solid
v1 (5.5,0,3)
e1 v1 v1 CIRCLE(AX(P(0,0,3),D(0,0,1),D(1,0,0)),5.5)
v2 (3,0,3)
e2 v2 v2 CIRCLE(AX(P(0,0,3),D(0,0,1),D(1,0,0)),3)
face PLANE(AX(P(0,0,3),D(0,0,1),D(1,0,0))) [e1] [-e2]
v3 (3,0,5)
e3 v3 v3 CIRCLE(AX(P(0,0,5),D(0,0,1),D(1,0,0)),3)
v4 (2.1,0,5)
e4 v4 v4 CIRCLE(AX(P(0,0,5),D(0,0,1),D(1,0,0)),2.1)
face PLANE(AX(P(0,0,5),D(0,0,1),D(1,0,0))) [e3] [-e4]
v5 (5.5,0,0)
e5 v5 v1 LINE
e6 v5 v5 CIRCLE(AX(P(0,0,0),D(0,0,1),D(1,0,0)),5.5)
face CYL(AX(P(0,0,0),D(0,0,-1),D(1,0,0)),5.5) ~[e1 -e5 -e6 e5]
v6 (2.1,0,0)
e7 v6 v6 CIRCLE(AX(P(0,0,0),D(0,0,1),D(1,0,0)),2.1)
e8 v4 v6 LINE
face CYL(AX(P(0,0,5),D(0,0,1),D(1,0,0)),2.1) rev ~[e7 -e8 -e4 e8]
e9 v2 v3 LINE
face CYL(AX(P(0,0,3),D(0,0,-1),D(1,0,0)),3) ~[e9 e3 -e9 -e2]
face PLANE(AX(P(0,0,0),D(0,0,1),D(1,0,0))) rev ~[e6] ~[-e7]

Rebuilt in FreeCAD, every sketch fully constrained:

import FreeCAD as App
import Part
import Sketcher
from FreeCAD import Vector
Q = App.Units.Quantity

doc = App.newDocument("Part")
params = doc.addObject("Spreadsheet::Sheet", "Params")
for row, (alias, value) in enumerate([
    ("sketch1_diameter", "11 mm"),
    ("pad1_length", "3 mm"),
    ("sketch2_diameter", "6 mm"),
    ("pad2_length", "2 mm"),
    ("sketch3_diameter", "4.2 mm"),
    ("pocket1_length", "5 mm"),
], start=1):
    params.set(f"A{row}", alias)
    params.set(f"B{row}", "=" + value)
    params.setAlias(f"B{row}", alias)

body = doc.addObject("PartDesign::Body", "Body")

# Sketch on XY plane
sketch1 = doc.addObject("Sketcher::SketchObject", "Sketch")
body.addObject(sketch1)
sketch1.AttachmentSupport = (doc.XY_Plane, [""])
sketch1.MapMode = "FlatFace"
sketch1.addGeometry(Part.Circle(Vector(0, 0, 0), Vector(0, 0, 1), 6), False)
sketch1.addConstraint(Sketcher.Constraint("Coincident", 0, 3, -1, 1))
sketch1.addConstraint(Sketcher.Constraint("Diameter", 0, Q("11 mm")))
sketch1.setExpression("Constraints[1]", "Params.sketch1_diameter")
pad1 = doc.addObject("PartDesign::Pad", "Pad")
body.addObject(pad1)
pad1.Profile = sketch1
pad1.setExpression("Length", "Params.pad1_length")

# Sketch on XY plane
sketch2 = doc.addObject("Sketcher::SketchObject", "Sketch001")
body.addObject(sketch2)
sketch2.AttachmentSupport = (doc.XY_Plane, [""])
sketch2.MapMode = "FlatFace"
sketch2.AttachmentOffset = App.Placement(Vector(0, 0, 3), App.Rotation())
sketch2.addGeometry(Part.Circle(Vector(0, 0, 0), Vector(0, 0, 1), 3), False)
sketch2.addConstraint(Sketcher.Constraint("Coincident", 0, 3, -1, 1))
sketch2.addConstraint(Sketcher.Constraint("Diameter", 0, Q("6 mm")))
sketch2.setExpression("Constraints[1]", "Params.sketch2_diameter")
pad2 = doc.addObject("PartDesign::Pad", "Pad001")
body.addObject(pad2)
pad2.Profile = sketch2
pad2.setExpression("Length", "Params.pad2_length")

# Sketch on XY plane
sketch3 = doc.addObject("Sketcher::SketchObject", "Sketch002")
body.addObject(sketch3)
sketch3.AttachmentSupport = (doc.XY_Plane, [""])
sketch3.MapMode = "FlatFace"
sketch3.AttachmentOffset = App.Placement(Vector(0, 0, 5), App.Rotation())
sketch3.addGeometry(Part.Circle(Vector(0, 0, 0), Vector(0, 0, 1), 2.1), False)
sketch3.addConstraint(Sketcher.Constraint("Coincident", 0, 3, -1, 1))
sketch3.addConstraint(Sketcher.Constraint("Diameter", 0, Q("4.2 mm")))
sketch3.setExpression("Constraints[1]", "Params.sketch3_diameter")
pocket1 = doc.addObject("PartDesign::Pocket", "Pocket")
body.addObject(pocket1)
pocket1.Profile = sketch3
pocket1.setExpression("Length", "Params.pocket1_length")

doc.recompute()
